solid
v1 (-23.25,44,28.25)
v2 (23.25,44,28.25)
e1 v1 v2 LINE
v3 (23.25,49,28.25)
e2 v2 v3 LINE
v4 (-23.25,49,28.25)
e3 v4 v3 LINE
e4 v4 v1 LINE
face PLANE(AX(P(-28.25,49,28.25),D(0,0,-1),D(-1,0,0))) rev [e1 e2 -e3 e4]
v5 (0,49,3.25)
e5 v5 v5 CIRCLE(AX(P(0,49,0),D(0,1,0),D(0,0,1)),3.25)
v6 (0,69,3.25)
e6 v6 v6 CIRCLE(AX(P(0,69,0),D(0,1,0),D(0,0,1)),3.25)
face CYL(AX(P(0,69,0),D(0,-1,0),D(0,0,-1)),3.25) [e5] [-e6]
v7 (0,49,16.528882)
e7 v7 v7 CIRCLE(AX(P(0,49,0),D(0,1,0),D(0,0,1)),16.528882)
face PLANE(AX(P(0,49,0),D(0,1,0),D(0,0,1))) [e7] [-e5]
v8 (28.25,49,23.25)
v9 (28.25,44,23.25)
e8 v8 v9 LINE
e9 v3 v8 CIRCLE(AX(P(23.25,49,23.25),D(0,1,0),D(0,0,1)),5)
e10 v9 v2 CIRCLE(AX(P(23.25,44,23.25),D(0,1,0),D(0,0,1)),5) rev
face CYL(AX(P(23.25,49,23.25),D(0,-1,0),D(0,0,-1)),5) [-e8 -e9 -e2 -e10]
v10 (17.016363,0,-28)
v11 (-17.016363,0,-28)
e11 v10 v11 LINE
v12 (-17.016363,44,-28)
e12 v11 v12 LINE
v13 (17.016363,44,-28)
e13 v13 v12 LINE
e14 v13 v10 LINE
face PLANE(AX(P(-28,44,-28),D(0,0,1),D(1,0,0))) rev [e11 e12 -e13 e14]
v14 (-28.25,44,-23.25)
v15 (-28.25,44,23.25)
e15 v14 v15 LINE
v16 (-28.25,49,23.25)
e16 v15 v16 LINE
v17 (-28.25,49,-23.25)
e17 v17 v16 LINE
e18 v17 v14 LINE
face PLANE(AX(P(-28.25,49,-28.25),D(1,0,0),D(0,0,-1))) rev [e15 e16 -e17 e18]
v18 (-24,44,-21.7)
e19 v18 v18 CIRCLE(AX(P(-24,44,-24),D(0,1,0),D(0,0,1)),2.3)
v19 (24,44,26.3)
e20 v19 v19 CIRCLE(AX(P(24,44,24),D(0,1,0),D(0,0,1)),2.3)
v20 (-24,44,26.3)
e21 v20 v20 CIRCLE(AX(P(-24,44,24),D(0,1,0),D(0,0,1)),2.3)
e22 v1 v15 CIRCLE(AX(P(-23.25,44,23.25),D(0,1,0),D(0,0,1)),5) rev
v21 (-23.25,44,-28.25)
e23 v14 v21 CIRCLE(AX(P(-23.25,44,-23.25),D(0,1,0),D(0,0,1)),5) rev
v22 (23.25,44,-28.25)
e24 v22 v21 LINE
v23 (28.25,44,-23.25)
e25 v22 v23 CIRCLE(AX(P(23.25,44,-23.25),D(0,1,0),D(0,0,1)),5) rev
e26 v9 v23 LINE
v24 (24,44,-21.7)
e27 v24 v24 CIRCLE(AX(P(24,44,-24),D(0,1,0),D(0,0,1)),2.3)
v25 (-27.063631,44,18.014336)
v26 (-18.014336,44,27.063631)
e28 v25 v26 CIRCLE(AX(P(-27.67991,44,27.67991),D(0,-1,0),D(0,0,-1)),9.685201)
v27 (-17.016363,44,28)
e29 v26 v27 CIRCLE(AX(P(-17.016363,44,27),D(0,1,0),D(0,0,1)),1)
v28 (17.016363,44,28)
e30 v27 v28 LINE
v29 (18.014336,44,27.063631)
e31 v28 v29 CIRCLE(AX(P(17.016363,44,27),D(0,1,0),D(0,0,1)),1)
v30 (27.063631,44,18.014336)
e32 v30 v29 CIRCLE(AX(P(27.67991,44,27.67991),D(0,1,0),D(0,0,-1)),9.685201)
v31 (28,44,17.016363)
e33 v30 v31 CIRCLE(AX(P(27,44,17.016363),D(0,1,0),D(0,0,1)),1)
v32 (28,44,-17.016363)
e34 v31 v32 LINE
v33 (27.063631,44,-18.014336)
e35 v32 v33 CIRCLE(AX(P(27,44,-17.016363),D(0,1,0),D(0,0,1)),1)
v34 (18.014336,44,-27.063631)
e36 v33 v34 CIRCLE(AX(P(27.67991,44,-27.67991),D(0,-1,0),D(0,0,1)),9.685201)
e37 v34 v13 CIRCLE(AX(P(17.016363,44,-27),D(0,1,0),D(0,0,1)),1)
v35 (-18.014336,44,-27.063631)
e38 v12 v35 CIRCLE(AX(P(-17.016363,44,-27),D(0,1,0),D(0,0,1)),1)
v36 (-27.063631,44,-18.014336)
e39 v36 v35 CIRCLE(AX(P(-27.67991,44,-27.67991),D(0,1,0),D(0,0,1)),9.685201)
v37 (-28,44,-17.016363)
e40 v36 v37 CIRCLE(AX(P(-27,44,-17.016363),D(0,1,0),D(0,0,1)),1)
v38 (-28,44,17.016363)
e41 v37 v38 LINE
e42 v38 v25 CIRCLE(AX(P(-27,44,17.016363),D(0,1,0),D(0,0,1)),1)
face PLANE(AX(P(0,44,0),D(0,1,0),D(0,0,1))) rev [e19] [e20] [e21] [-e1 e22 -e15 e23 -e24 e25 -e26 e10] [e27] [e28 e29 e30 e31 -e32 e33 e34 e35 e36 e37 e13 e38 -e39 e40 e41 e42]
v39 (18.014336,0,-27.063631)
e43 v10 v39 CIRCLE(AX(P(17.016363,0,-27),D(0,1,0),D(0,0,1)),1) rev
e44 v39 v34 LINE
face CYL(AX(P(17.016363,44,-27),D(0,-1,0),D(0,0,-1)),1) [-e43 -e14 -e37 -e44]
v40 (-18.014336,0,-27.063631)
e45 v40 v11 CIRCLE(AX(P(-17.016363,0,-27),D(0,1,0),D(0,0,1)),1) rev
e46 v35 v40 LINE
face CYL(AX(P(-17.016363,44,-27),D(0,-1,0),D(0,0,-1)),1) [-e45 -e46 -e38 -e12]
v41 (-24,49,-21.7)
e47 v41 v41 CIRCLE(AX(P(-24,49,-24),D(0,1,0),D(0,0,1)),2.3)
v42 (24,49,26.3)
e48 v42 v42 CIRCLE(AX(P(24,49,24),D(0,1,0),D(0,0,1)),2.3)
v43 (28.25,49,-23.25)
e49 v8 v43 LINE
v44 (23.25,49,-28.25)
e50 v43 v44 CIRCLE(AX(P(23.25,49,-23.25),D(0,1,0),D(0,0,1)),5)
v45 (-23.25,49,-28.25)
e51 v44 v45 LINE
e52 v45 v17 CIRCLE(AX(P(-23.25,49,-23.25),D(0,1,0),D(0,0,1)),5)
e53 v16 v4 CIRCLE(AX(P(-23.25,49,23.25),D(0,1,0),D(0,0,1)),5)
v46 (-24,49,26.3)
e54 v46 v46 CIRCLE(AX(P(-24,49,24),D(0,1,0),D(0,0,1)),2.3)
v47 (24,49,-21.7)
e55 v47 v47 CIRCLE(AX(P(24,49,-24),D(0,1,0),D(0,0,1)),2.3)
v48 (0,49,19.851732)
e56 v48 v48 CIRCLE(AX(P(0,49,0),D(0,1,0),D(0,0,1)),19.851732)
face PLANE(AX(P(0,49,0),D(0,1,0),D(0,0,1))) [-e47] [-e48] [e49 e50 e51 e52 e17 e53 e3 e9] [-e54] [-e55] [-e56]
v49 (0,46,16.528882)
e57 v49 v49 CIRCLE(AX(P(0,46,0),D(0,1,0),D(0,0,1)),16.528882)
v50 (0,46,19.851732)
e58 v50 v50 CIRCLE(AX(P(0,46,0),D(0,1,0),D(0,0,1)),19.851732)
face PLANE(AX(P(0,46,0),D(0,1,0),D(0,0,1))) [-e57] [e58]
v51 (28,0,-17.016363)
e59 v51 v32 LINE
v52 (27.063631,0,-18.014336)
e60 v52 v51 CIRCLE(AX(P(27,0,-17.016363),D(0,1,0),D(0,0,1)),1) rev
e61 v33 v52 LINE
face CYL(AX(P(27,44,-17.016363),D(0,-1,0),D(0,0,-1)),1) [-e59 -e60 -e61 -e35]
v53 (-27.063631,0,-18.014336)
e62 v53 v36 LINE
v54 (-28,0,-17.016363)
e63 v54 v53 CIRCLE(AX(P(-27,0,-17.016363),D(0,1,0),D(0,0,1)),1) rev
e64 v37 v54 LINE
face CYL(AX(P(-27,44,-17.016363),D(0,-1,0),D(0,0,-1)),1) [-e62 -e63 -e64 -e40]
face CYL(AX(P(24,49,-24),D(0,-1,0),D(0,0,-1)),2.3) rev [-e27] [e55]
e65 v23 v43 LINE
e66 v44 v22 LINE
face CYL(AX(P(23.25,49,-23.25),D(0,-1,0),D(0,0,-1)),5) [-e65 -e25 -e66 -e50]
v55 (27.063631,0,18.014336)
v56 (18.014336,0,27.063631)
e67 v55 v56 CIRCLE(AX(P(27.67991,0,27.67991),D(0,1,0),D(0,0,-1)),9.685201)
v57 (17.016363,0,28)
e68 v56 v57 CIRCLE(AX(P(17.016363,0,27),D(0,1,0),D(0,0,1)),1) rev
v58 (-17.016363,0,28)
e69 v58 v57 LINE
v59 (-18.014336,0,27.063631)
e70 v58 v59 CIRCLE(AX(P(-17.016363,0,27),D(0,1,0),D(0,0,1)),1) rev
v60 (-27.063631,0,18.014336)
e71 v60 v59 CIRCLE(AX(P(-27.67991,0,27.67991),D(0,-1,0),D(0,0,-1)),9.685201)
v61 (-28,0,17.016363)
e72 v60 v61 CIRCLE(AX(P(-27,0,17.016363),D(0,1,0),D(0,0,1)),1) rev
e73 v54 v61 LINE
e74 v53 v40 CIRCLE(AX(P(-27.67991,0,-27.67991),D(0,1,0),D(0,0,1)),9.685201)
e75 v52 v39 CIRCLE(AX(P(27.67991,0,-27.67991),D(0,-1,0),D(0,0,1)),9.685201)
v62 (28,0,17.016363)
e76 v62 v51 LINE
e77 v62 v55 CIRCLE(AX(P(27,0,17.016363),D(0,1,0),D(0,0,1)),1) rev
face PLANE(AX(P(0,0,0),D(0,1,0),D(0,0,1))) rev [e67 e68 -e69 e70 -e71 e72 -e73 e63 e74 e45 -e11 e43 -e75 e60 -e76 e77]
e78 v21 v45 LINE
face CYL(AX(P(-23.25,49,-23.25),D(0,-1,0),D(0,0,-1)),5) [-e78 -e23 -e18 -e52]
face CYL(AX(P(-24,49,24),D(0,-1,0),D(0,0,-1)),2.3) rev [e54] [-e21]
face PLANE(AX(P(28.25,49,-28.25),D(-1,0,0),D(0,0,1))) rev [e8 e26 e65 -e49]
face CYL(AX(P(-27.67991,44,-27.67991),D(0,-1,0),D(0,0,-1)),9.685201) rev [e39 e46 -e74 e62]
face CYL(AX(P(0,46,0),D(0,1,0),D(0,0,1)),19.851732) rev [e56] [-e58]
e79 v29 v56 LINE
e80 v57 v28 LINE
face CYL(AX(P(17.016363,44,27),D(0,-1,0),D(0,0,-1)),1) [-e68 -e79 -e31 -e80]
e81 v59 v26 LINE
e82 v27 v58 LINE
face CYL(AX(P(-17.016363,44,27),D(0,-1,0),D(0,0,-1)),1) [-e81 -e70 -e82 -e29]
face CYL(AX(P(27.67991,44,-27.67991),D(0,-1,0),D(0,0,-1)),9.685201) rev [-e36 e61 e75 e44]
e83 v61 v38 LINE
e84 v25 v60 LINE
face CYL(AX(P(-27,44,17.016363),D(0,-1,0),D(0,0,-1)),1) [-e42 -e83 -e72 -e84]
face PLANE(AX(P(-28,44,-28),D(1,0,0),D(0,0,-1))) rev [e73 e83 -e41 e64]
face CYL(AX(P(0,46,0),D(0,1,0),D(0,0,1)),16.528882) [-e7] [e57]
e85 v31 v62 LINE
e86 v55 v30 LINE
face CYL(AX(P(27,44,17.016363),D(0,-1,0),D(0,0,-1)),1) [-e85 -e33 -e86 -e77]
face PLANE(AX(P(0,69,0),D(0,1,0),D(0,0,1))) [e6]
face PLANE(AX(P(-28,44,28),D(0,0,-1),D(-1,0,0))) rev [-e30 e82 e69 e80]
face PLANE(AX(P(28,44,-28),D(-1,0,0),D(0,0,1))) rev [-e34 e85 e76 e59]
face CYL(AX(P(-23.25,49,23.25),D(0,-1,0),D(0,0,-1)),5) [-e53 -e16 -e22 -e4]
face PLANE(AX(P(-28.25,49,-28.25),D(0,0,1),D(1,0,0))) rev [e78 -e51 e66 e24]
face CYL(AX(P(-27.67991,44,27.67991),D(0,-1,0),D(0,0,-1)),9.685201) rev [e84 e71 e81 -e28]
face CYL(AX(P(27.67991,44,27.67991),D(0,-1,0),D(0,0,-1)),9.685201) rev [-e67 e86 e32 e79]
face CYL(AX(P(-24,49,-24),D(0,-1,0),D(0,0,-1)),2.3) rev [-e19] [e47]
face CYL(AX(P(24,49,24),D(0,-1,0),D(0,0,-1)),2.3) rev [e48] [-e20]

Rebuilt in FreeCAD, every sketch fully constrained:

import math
import FreeCAD as App
import Part
import Sketcher
from FreeCAD import Vector
Q = App.Units.Quantity


def edges_at(feature, points):
    """Names of the edges that pass closest to the given points."""
    edges = feature.Shape.Edges
    near = lambda p: min(range(len(edges)), key=lambda i: edges[i].distToShape(Part.Vertex(*p))[0])
    return sorted({f"Edge{near(p) + 1}" for p in points})

doc = App.newDocument("Part")
body = doc.addObject("PartDesign::Body", "Body")

# Sketch on XZ plane
sketch1 = doc.addObject("Sketcher::SketchObject", "Sketch")
body.addObject(sketch1)
sketch1.AttachmentSupport = (doc.XZ_Plane, [""])
sketch1.MapMode = "FlatFace"
sketch1.addGeometry([
    Part.LineSegment(Vector(-28, -28, 0), Vector(-28, 28, 0)),
    Part.LineSegment(Vector(-28, 28, 0), Vector(28, 28, 0)),
    Part.LineSegment(Vector(28, 28, 0), Vector(28, -28, 0)),
    Part.LineSegment(Vector(28, -28, 0), Vector(-28, -28, 0)),
], False)
sketch1.addConstraint([
    Sketcher.Constraint("Coincident", 0, 2, 1, 1),
    Sketcher.Constraint("Coincident", 1, 2, 2, 1),
    Sketcher.Constraint("Coincident", 2, 2, 3, 1),
    Sketcher.Constraint("Coincident", 3, 2, 0, 1),
    Sketcher.Constraint("Vertical", 0),
    Sketcher.Constraint("Horizontal", 1),
    Sketcher.Constraint("Vertical", 2),
    Sketcher.Constraint("Horizontal", 3),
    Sketcher.Constraint("Symmetric", 0, 2, 2, 2, -1, 1),
    Sketcher.Constraint("Equal", 3, 0),
    Sketcher.Constraint("DistanceX", 1, 1, 1, 2, Q("56 mm")),
])
pad1 = doc.addObject("PartDesign::Pad", "Pad")
body.addObject(pad1)
pad1.Profile = sketch1
pad1.Length = 44
pad1.Reversed = True

# Sketch on XZ plane
sketch2 = doc.addObject("Sketcher::SketchObject", "Sketch001")
body.addObject(sketch2)
sketch2.AttachmentSupport = (doc.XZ_Plane, [""])
sketch2.MapMode = "FlatFace"
sketch2.AttachmentOffset = App.Placement(Vector(0, 0, -44), App.Rotation())
sketch2.addGeometry([
    Part.LineSegment(Vector(-28.2, -28.2, 0), Vector(-28.2, 28.2, 0)),  # 0
    Part.LineSegment(Vector(-28.2, 28.2, 0), Vector(28.2, 28.2, 0)),  # 1
    Part.LineSegment(Vector(28.2, 28.2, 0), Vector(28.2, -28.2, 0)),  # 2
    Part.LineSegment(Vector(28.2, -28.2, 0), Vector(-28.2, -28.2, 0)),  # 3
    Part.Circle(Vector(-24, 24, 0), Vector(0, 0, 1), 2.3),  # 4
    Part.Circle(Vector(24, 24, 0), Vector(0, 0, 1), 2.3),  # 5
    Part.Circle(Vector(-24, -24, 0), Vector(0, 0, 1), 2.3),  # 6
    Part.Circle(Vector(24, -24, 0), Vector(0, 0, 1), 2.3),  # 7
], False)
sketch2.addConstraint([
    Sketcher.Constraint("Coincident", 0, 2, 1, 1),
    Sketcher.Constraint("Coincident", 1, 2, 2, 1),
    Sketcher.Constraint("Coincident", 2, 2, 3, 1),
    Sketcher.Constraint("Coincident", 3, 2, 0, 1),
    Sketcher.Constraint("Vertical", 0),
    Sketcher.Constraint("Horizontal", 1),
    Sketcher.Constraint("Vertical", 2),
    Sketcher.Constraint("Horizontal", 3),
    Sketcher.Constraint("Equal", 4, 5),
    Sketcher.Constraint("Equal", 5, 6),
    Sketcher.Constraint("Equal", 6, 7),
    Sketcher.Constraint("Symmetric", 5, 3, 6, 3, -1, 1),
    Sketcher.Constraint("Symmetric", 4, 3, 7, 3, -1, 1),
    Sketcher.Constraint("Symmetric", 0, 2, 2, 2, -1, 1),
    Sketcher.Constraint("Symmetric", 4, 3, 5, 3, -2),
    Sketcher.Constraint("Equal", 3, 0),
    Sketcher.Constraint("Diameter", 4, Q("4.6 mm")),
    Sketcher.Constraint("DistanceX", 1, 1, 1, 2, Q("56.5 mm")),
    Sketcher.Constraint("DistanceX", 4, 3, -1, 1, Q("24 mm")),
    Sketcher.Constraint("DistanceY", -1, 1, 4, 3, Q("24 mm")),
])
pad2 = doc.addObject("PartDesign::Pad", "Pad001")
body.addObject(pad2)
pad2.Profile = sketch2
pad2.Length = 5
pad2.Reversed = True

# Sketch on XZ plane
sketch3 = doc.addObject("Sketcher::SketchObject", "Sketch002")
body.addObject(sketch3)
sketch3.AttachmentSupport = (doc.XZ_Plane, [""])
sketch3.MapMode = "FlatFace"
sketch3.AttachmentOffset = App.Placement(Vector(0, 0, -49), App.Rotation())
sketch3.addGeometry([
    Part.Circle(Vector(0, 0, 0), Vector(0, 0, 1), 20),
    Part.Circle(Vector(0, 0, 0), Vector(0, 0, 1), 17),
], False)
sketch3.addConstraint([
    Sketcher.Constraint("Coincident", 0, 3, -1, 1),
    Sketcher.Constraint("Coincident", 1, 3, -1, 1),
    Sketcher.Constraint("Diameter", 0, Q("39.703463 mm")),
    Sketcher.Constraint("Diameter", 1, Q("33.057765 mm")),
])
pocket1 = doc.addObject("PartDesign::Pocket", "Pocket")
body.addObject(pocket1)
pocket1.Profile = sketch3
pocket1.Length = 3
pocket1.Reversed = True

# Sketch on XZ plane
sketch4 = doc.addObject("Sketcher::SketchObject", "Sketch003")
body.addObject(sketch4)
sketch4.AttachmentSupport = (doc.XZ_Plane, [""])
sketch4.MapMode = "FlatFace"
sketch4.AttachmentOffset = App.Placement(Vector(0, 0, -49), App.Rotation())
sketch4.addGeometry(Part.Circle(Vector(0, 0, 0), Vector(0, 0, 1), 3.2), False)
sketch4.addConstraint([
    Sketcher.Constraint("Coincident", 0, 3, -1, 1),
    Sketcher.Constraint("Diameter", 0, Q("6.5 mm")),
])
pad3 = doc.addObject("PartDesign::Pad", "Pad002")
body.addObject(pad3)
pad3.Profile = sketch4
pad3.Length = 20
pad3.Reversed = True

# Sketch on XZ plane
sketch5 = doc.addObject("Sketcher::SketchObject", "Sketch004")
body.addObject(sketch5)
sketch5.AttachmentSupport = (doc.XZ_Plane, [""])
sketch5.MapMode = "FlatFace"
sketch5.addGeometry([
    Part.LineSegment(Vector(-28, 28, 0), Vector(-28, 18, 0)),
    Part.ArcOfCircle(Part.Circle(Vector(-28, 28, 0), Vector(0, 0, 1), 10), math.radians(-92), math.radians(2)),
    Part.LineSegment(Vector(-18, 28, 0), Vector(-28, 28, 0)),
], False)
sketch5.addConstraint([
    Sketcher.Constraint("Coincident", 0, 2, 1, 1),
    Sketcher.Constraint("Coincident", 1, 2, 2, 1),
    Sketcher.Constraint("Coincident", 2, 2, 0, 1),
    Sketcher.Constraint("Vertical", 0),
    Sketcher.Constraint("Horizontal", 2),
    Sketcher.Constraint("Equal", 2, 0),
    Sketcher.Constraint("DistanceX", 2, 2, 2, 1, Q("10 mm")),
    Sketcher.Constraint("DistanceX", 0, 2, -1, 1, Q("28 mm")),
    Sketcher.Constraint("DistanceY", -1, 1, 0, 2, Q("18 mm")),
    Sketcher.Constraint("Radius", 1, Q("9.685201 mm")),
])
pocket2 = doc.addObject("PartDesign::Pocket", "Pocket001")
body.addObject(pocket2)
pocket2.Profile = sketch5
pocket2.Length = 44
doc.recompute()

mirrored = doc.addObject("PartDesign::Mirrored", "Mirrored")
body.addObject(mirrored)
mirrored.Originals = [pocket2]
mirrored.MirrorPlane = (doc.YZ_Plane, [""])
body.Tip = mirrored
doc.recompute()

mirrored2 = doc.addObject("PartDesign::Mirrored", "Mirrored001")
body.addObject(mirrored2)
mirrored2.Originals = [pocket2]
mirrored2.MirrorPlane = (doc.XY_Plane, [""])
body.Tip = mirrored2

# Sketch on XZ plane
sketch6 = doc.addObject("Sketcher::SketchObject", "Sketch005")
body.addObject(sketch6)
sketch6.AttachmentSupport = (doc.XZ_Plane, [""])
sketch6.MapMode = "FlatFace"
sketch6.addGeometry([
    Part.LineSegment(Vector(28, -28, 0), Vector(28, -18, 0)),
    Part.ArcOfCircle(Part.Circle(Vector(28, -28, 0), Vector(0, 0, 1), 10), math.radians(88), math.radians(182)),
    Part.LineSegment(Vector(18, -28, 0), Vector(28, -28, 0)),
], False)
sketch6.addConstraint([
    Sketcher.Constraint("Coincident", 0, 2, 1, 1),
    Sketcher.Constraint("Coincident", 1, 2, 2, 1),
    Sketcher.Constraint("Coincident", 2, 2, 0, 1),
    Sketcher.Constraint("Vertical", 0),
    Sketcher.Constraint("Horizontal", 2),
    Sketcher.Constraint("Equal", 2, 0),
    Sketcher.Constraint("DistanceX", 2, 1, 2, 2, Q("10 mm")),
    Sketcher.Constraint("DistanceX", -1, 1, 0, 2, Q("28 mm")),
    Sketcher.Constraint("DistanceY", 0, 2, -1, 1, Q("18 mm")),
    Sketcher.Constraint("Radius", 1, Q("9.685201 mm")),
])
pocket3 = doc.addObject("PartDesign::Pocket", "Pocket002")
body.addObject(pocket3)
pocket3.Profile = sketch6
pocket3.Length = 44
doc.recompute()

fillet = doc.addObject("PartDesign::Fillet", "Fillet")
body.addObject(fillet)
fillet.Base = (pocket3, edges_at(pocket3, [
    (-18, 22, 28),
    (-28, 22, 18),
    (-28, 22, -18),
    (-18, 22, -28),
    (28, 22, 18),
    (18, 22, 28),
    (18, 22, -28),
    (28, 22, -18),
]))
fillet.Radius = 1
doc.recompute()

fillet2 = doc.addObject("PartDesign::Fillet", "Fillet001")
body.addObject(fillet2)
fillet2.Base = (fillet, edges_at(fillet, [
    (28.25, 46.5, 28.25),
    (28.25, 46.5, -28.25),
    (-28.25, 46.5, -28.25),
    (-28.25, 46.5, 28.25),
]))
fillet2.Radius = 5

doc.recompute()
